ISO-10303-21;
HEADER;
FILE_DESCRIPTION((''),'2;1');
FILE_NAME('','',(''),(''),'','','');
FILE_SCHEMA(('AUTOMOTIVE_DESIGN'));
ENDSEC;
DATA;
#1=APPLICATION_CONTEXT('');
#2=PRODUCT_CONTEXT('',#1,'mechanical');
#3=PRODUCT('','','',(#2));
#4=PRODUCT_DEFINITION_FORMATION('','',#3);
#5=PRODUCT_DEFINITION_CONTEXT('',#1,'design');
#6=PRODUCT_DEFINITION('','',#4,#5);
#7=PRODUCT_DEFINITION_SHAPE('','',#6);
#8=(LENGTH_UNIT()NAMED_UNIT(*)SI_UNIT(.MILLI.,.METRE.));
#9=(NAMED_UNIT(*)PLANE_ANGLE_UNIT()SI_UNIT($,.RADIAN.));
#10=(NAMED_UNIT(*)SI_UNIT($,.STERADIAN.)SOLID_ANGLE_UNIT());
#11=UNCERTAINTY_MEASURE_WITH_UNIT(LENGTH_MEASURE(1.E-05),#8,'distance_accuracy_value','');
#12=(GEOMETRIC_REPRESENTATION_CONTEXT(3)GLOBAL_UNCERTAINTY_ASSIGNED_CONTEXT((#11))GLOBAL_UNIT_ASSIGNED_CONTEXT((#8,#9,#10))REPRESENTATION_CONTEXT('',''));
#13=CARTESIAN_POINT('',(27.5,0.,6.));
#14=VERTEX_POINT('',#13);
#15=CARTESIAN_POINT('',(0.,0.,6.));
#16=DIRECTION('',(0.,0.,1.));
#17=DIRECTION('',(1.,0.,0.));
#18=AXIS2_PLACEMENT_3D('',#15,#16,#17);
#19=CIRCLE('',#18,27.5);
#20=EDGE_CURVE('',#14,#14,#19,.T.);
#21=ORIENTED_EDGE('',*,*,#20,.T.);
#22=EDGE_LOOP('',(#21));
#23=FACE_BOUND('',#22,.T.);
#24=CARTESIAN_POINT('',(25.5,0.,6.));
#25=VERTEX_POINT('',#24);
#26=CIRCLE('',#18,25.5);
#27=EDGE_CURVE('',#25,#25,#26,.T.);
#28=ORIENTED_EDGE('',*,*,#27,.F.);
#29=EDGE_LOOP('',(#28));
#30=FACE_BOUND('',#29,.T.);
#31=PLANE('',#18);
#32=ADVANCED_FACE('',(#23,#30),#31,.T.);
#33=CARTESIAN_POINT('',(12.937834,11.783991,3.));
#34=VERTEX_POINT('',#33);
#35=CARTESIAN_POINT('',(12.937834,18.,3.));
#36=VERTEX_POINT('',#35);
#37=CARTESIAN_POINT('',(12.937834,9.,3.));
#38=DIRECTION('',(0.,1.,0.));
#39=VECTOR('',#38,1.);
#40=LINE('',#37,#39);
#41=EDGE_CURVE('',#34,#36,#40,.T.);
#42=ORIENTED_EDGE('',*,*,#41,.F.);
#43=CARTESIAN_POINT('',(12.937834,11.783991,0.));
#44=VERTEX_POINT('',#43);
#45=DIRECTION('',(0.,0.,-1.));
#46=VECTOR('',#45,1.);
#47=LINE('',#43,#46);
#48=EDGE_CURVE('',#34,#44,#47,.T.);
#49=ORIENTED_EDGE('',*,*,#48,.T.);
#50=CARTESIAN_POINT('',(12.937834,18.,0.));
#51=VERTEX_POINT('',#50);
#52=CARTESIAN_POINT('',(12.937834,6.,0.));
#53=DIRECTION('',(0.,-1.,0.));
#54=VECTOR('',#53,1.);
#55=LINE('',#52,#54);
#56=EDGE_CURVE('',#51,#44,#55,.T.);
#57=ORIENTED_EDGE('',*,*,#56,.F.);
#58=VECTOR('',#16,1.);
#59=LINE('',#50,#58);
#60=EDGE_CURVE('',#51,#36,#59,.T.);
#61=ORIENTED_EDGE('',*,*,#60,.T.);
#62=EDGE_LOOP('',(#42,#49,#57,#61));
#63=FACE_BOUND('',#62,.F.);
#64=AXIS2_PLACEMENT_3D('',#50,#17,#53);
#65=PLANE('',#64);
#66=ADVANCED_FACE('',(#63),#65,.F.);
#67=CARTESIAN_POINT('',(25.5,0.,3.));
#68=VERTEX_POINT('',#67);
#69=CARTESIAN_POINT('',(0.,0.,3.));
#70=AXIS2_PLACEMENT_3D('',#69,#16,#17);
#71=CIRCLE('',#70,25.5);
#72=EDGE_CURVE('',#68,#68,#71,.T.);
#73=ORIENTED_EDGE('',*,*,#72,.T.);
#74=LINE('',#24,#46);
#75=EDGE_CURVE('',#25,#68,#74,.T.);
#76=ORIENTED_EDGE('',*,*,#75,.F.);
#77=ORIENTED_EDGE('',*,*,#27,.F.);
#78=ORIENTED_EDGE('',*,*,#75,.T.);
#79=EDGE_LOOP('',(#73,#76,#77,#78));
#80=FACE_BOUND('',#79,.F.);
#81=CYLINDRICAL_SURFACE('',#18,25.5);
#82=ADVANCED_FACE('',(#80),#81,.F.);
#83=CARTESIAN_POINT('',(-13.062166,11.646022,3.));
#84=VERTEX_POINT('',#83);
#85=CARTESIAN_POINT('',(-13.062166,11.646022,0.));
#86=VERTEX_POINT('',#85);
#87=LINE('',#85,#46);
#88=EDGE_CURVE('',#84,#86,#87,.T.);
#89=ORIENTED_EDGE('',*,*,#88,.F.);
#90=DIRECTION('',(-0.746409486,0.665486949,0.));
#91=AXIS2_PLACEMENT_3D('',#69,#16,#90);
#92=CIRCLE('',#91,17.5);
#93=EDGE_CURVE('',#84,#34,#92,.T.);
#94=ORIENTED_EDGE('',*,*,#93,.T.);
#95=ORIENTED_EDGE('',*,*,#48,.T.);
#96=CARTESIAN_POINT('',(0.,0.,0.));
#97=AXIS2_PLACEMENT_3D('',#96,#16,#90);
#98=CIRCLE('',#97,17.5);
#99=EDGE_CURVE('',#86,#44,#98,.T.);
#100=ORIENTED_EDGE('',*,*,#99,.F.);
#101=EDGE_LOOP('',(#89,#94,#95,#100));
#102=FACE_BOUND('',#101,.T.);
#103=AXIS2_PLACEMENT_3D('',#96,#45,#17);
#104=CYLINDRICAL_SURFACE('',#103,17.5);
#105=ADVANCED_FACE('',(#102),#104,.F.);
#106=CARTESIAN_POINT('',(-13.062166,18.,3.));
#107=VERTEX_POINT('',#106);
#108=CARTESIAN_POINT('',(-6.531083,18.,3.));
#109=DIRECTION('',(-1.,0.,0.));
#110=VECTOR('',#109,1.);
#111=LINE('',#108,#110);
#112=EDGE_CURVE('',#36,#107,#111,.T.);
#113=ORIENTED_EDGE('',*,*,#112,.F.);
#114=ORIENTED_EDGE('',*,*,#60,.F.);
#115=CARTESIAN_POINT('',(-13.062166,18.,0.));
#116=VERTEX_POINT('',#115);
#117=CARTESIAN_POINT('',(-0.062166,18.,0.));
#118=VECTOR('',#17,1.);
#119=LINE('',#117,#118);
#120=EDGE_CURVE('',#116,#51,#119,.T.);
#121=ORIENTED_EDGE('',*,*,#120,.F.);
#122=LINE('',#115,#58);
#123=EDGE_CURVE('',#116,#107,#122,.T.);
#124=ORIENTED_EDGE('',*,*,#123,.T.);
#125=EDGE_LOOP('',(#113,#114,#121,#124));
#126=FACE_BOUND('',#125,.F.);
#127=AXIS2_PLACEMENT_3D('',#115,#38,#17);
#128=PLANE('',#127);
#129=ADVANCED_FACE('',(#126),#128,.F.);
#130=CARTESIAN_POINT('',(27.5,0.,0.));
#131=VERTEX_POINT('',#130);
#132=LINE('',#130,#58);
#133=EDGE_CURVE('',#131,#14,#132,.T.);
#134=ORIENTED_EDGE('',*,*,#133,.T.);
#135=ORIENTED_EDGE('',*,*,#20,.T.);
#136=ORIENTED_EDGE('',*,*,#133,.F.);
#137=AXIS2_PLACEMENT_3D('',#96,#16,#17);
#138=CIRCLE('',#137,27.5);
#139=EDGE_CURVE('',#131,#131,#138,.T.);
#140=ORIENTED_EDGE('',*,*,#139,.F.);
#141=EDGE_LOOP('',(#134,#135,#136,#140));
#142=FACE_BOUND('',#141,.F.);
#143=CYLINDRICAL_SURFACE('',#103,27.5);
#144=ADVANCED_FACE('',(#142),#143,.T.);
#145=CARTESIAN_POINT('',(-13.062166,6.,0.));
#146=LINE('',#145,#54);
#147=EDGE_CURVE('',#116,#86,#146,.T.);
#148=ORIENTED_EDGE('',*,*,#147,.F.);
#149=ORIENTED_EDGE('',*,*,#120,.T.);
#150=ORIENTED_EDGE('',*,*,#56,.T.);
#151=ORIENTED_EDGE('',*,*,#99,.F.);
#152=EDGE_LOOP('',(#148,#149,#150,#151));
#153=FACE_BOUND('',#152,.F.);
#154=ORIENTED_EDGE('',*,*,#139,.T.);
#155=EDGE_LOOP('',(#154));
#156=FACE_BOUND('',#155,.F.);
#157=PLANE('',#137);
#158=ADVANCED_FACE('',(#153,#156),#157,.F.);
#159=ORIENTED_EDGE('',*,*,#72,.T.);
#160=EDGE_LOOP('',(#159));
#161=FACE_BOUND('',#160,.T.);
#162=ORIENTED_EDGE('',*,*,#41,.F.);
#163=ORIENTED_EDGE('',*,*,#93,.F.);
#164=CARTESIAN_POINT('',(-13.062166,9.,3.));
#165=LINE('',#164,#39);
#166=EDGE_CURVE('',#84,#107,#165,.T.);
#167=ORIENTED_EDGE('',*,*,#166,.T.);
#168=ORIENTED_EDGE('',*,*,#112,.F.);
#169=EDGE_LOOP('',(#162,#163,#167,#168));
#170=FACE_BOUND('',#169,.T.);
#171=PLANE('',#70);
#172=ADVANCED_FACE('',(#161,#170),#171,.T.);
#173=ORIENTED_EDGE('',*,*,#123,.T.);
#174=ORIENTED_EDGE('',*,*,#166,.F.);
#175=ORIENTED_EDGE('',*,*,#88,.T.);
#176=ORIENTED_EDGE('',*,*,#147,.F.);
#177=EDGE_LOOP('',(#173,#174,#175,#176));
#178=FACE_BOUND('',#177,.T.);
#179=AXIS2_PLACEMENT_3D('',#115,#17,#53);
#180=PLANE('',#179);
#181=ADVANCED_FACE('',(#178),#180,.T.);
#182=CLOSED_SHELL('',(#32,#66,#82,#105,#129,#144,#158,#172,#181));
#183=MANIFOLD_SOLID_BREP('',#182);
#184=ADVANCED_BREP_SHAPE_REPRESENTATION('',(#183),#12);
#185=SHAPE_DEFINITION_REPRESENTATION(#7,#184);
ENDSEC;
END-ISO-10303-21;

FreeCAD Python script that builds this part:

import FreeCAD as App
import Part
import Sketcher
from FreeCAD import Vector

doc = App.newDocument("Part")
body = doc.addObject("PartDesign::Body", "Body")

sketch1 = doc.addObject("Sketcher::SketchObject", "Sketch")
body.addObject(sketch1)
sketch1.AttachmentSupport = (doc.XY_Plane, [""])
sketch1.MapMode = "FlatFace"
sketch1.addGeometry(Part.Circle(Vector(0, 0, 0), Vector(0, 0, 1), 28), False)
sketch1.addGeometry(Part.Circle(Vector(0, 0, 0), Vector(0, 0, 1), 18), False)
sketch1.addConstraint(Sketcher.Constraint("Coincident", 0, 3, -1, 1))
sketch1.addConstraint(Sketcher.Constraint("Coincident", 1, 3, -1, 1))
sketch1.addConstraint(Sketcher.Constraint("Diameter", 0, 55.0))
sketch1.addConstraint(Sketcher.Constraint("Diameter", 1, 35.0))
pad1 = doc.addObject("PartDesign::Pad", "Pad")
body.addObject(pad1)
pad1.Profile = sketch1
pad1.Length = 6

sketch2 = doc.addObject("Sketcher::SketchObject", "Sketch001")
body.addObject(sketch2)
sketch2.AttachmentSupport = (doc.XY_Plane, [""])
sketch2.MapMode = "FlatFace"
sketch2.AttachmentOffset = App.Placement(Vector(0, 0, 6), App.Rotation())
sketch2.addGeometry(Part.Circle(Vector(0, 0, 0), Vector(0, 0, 1), 26), False)
sketch2.addGeometry(Part.Circle(Vector(0, 0, 0), Vector(0, 0, 1), 18), False)
sketch2.addConstraint(Sketcher.Constraint("Coincident", 0, 3, -1, 1))
sketch2.addConstraint(Sketcher.Constraint("Coincident", 1, 3, -1, 1))
sketch2.addConstraint(Sketcher.Constraint("Diameter", 0, 51.0))
sketch2.addConstraint(Sketcher.Constraint("Diameter", 1, 35.0))
pocket1 = doc.addObject("PartDesign::Pocket", "Pocket")
body.addObject(pocket1)
pocket1.Profile = sketch2
pocket1.Length = 3

sketch3 = doc.addObject("Sketcher::SketchObject", "Sketch002")
body.addObject(sketch3)
sketch3.AttachmentSupport = (doc.XY_Plane, [""])
sketch3.MapMode = "FlatFace"
sketch3.addGeometry(Part.LineSegment(Vector(-13, -6, 0), Vector(-13, 18, 0)), False)
sketch3.addGeometry(Part.LineSegment(Vector(-13, 18, 0), Vector(13, 18, 0)), False)
sketch3.addGeometry(Part.LineSegment(Vector(13, 18, 0), Vector(13, -6, 0)), False)
sketch3.addGeometry(Part.LineSegment(Vector(13, -6, 0), Vector(-13, -6, 0)), False)
sketch3.addConstraint(Sketcher.Constraint("Coincident", 0, 2, 1, 1))
sketch3.addConstraint(Sketcher.Constraint("Coincident", 1, 2, 2, 1))
sketch3.addConstraint(Sketcher.Constraint("Coincident", 2, 2, 3, 1))
sketch3.addConstraint(Sketcher.Constraint("Coincident", 3, 2, 0, 1))
sketch3.addConstraint(Sketcher.Constraint("Vertical", 0))
sketch3.addConstraint(Sketcher.Constraint("Horizontal", 1))
sketch3.addConstraint(Sketcher.Constraint("Vertical", 2))
sketch3.addConstraint(Sketcher.Constraint("Horizontal", 3))
sketch3.addConstraint(Sketcher.Constraint("DistanceX", 1, 1, 1, 2, 26.0))
sketch3.addConstraint(Sketcher.Constraint("DistanceY", 0, 1, 0, 2, 24.0))
sketch3.addConstraint(Sketcher.Constraint("DistanceY", -1, 1, 0, 2, 18.0))
sketch3.addConstraint(Sketcher.Constraint("DistanceX", 0, 2, -1, 1, 13.062166))
pocket2 = doc.addObject("PartDesign::Pocket", "Pocket001")
body.addObject(pocket2)
pocket2.Profile = sketch3
pocket2.Length = 25
pocket2.Reversed = True

doc.recompute()
